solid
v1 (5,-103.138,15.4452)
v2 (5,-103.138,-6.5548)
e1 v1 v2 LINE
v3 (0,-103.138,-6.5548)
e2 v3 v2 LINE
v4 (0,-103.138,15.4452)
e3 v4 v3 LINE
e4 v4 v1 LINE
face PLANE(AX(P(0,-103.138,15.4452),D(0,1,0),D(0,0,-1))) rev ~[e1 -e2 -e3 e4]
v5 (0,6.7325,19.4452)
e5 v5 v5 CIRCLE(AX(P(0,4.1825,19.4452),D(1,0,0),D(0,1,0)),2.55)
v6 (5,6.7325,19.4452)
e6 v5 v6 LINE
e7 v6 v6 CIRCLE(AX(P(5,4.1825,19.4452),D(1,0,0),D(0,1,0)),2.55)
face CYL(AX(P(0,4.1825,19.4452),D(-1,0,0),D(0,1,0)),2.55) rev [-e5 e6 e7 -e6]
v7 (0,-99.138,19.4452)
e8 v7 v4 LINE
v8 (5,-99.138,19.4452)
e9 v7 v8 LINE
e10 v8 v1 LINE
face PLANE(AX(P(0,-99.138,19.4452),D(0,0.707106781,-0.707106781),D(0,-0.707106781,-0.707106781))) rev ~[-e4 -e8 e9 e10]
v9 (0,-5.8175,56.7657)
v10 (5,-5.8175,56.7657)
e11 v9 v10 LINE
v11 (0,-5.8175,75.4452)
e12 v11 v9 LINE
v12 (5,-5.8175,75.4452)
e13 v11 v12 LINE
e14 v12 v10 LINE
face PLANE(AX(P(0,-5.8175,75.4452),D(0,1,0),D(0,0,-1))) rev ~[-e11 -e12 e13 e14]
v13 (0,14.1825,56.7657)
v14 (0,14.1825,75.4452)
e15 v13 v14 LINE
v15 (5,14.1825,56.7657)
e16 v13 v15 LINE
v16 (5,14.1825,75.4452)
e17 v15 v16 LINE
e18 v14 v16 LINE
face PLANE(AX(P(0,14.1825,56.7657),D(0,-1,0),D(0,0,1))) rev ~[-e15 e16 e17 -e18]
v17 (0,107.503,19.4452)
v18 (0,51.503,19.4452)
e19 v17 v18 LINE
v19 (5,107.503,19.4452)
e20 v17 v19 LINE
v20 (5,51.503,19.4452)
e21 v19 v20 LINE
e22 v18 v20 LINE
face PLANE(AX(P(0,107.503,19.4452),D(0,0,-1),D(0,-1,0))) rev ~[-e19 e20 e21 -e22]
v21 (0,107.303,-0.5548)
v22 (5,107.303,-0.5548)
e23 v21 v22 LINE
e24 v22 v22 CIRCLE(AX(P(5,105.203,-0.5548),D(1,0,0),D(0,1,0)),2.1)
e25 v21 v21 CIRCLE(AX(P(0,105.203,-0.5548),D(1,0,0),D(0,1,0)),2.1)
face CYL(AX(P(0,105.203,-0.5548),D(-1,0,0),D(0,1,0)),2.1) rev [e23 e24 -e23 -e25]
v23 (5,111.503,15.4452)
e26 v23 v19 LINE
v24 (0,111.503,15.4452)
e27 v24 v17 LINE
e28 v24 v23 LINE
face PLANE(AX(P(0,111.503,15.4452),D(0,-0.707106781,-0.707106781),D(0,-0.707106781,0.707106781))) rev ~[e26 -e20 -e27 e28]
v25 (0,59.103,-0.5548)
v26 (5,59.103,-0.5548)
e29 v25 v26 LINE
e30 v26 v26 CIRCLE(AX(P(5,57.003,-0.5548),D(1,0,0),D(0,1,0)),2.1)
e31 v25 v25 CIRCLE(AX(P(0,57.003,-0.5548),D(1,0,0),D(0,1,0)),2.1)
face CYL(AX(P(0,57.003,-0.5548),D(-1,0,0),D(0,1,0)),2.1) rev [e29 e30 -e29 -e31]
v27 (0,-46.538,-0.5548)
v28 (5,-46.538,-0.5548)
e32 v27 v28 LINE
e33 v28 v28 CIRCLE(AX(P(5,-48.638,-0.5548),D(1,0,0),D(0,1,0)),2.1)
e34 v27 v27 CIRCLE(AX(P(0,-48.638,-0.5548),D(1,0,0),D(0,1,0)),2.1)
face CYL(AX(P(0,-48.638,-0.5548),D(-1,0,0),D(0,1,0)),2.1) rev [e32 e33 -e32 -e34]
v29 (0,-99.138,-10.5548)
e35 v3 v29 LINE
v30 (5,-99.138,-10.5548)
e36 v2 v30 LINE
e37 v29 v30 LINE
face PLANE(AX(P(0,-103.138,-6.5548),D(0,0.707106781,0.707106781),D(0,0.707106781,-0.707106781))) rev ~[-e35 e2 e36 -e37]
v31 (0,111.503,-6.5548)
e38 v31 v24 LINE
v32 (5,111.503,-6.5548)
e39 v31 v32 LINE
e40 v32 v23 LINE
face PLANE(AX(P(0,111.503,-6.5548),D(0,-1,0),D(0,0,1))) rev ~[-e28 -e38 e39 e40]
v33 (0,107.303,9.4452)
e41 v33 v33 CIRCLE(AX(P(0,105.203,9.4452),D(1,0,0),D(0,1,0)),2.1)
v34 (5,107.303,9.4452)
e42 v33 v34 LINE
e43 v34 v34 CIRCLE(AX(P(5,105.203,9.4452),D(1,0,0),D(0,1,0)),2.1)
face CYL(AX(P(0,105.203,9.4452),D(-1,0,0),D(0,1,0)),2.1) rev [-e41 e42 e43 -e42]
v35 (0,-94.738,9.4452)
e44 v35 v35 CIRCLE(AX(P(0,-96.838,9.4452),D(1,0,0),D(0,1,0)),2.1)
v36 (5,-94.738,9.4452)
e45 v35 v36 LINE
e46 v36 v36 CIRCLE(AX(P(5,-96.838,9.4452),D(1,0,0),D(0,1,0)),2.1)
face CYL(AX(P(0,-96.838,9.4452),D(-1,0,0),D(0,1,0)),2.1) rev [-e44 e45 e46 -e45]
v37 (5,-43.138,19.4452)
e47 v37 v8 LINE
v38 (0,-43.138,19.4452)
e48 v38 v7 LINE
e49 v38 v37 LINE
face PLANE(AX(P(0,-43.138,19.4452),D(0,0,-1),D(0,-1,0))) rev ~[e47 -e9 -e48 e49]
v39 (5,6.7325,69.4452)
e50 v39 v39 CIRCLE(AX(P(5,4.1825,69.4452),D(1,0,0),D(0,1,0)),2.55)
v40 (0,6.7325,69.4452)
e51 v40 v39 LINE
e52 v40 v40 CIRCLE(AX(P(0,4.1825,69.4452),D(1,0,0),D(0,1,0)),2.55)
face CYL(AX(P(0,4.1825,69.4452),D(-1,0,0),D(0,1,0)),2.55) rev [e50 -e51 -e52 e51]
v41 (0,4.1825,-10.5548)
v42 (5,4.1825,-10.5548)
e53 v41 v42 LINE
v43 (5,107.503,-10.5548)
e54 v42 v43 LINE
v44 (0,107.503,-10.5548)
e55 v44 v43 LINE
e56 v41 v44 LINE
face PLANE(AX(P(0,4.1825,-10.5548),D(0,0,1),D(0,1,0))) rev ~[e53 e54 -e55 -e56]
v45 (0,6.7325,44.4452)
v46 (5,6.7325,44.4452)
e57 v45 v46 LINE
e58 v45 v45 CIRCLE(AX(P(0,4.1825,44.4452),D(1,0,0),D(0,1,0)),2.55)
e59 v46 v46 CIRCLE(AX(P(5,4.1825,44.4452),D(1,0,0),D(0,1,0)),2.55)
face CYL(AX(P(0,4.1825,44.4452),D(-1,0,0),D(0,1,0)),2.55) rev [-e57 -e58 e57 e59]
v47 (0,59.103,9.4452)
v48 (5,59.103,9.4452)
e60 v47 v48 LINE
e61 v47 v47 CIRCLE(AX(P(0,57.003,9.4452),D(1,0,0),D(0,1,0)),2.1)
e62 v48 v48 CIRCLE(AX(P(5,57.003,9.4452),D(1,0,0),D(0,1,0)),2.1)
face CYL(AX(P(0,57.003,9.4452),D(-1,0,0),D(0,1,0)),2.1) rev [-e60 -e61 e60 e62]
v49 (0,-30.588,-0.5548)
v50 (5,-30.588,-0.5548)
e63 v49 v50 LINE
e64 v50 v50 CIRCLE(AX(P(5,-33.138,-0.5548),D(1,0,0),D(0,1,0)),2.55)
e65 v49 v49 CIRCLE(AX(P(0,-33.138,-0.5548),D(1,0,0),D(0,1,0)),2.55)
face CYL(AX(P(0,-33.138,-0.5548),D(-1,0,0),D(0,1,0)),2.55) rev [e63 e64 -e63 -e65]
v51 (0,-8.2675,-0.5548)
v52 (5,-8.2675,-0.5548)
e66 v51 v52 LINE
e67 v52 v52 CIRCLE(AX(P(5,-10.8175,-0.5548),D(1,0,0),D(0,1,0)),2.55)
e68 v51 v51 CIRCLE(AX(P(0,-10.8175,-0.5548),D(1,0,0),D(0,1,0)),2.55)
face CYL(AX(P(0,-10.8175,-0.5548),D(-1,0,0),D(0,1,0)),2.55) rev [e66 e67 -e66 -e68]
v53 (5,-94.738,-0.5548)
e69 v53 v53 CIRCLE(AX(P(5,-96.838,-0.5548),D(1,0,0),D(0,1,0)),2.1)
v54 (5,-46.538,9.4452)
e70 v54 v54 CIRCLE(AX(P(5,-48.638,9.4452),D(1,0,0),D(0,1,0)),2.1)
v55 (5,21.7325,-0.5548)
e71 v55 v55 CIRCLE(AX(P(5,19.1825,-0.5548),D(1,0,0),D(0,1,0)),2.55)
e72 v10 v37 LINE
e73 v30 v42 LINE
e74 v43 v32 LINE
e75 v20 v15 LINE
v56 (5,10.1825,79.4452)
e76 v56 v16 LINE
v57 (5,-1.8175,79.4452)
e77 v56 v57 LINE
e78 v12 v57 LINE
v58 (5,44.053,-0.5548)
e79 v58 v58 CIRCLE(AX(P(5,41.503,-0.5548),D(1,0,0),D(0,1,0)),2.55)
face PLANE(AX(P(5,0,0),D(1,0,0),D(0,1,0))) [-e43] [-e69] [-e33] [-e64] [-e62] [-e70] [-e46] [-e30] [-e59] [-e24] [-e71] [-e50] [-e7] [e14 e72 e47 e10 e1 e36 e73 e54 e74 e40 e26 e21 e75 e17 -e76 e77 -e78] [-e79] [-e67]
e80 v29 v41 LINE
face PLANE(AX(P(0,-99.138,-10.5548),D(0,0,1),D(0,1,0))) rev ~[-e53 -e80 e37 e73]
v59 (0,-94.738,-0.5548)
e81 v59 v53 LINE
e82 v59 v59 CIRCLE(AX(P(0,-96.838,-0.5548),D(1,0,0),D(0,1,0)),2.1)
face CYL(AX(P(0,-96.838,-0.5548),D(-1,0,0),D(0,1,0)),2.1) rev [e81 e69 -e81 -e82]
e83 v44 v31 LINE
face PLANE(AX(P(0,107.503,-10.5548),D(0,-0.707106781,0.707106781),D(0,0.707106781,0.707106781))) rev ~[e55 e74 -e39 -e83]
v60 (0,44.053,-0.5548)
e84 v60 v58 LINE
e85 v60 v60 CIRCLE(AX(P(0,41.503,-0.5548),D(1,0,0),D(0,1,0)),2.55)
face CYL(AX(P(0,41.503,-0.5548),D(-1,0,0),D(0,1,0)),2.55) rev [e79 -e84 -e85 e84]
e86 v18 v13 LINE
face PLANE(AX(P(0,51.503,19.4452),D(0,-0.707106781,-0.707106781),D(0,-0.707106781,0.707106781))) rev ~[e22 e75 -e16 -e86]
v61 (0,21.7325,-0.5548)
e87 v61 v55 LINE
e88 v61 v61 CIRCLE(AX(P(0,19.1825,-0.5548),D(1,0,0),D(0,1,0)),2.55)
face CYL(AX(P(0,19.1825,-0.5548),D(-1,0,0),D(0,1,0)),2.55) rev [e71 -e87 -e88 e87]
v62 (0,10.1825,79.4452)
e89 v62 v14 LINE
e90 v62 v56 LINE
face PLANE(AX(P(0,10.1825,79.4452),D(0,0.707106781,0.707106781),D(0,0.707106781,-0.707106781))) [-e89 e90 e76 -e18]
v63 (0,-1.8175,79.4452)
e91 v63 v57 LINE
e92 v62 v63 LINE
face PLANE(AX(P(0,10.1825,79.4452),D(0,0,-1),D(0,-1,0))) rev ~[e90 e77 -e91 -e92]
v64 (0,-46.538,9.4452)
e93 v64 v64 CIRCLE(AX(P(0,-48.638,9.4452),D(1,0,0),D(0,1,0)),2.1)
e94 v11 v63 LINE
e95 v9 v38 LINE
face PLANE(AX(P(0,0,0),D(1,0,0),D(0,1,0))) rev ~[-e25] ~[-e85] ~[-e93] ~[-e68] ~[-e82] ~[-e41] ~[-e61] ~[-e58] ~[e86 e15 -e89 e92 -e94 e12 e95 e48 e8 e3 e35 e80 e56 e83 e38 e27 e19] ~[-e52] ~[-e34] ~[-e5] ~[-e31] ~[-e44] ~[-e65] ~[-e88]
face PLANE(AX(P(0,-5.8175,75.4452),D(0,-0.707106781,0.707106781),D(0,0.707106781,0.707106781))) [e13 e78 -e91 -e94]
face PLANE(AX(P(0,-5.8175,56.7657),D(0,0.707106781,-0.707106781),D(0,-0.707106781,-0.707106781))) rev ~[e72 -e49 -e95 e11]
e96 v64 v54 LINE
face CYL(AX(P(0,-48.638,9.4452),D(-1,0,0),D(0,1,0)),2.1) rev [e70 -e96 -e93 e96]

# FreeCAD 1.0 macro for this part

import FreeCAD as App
import Part
import Sketcher
from FreeCAD import Vector

doc = App.newDocument("Part")
params = doc.addObject("Spreadsheet::Sheet", "Params")
for row, (alias, value) in enumerate([
    ("sketch1_diameter", "4.2 mm"),
    ("sketch1_diameter2", "5.1 mm"),
    ("sketch1_width", "12 mm"),
    ("sketch1_width2", "56 mm"),
    ("sketch1_height", "22 mm"),
    ("pad1_length", "5 mm"),
], start=1):
    params.set(f"A{row}", alias)
    params.set(f"B{row}", "=" + value)
    params.setAlias(f"B{row}", alias)

body = doc.addObject("PartDesign::Body", "Body")

# Sketch on YZ plane
sketch1 = body.newObject("Sketcher::SketchObject", "Sketch")
sketch1.AttachmentSupport = (doc.getObject("YZ_Plane"), [""])
sketch1.MapMode = "FlatFace"
sketch1.addGeometry([
    Part.LineSegment(Vector(14.1825, 75.4452, 0), Vector(10.1825, 79.4452, 0)),  # 0
    Part.LineSegment(Vector(10.1825, 79.4452, 0), Vector(-1.8175, 79.4452, 0)),  # 1
    Part.LineSegment(Vector(-1.8175, 79.4452, 0), Vector(-5.8175, 75.4452, 0)),  # 2
    Part.LineSegment(Vector(-5.8175, 75.4452, 0), Vector(-5.8175, 56.7657, 0)),  # 3
    Part.LineSegment(Vector(-5.8175, 56.7657, 0), Vector(-43.138, 19.4452, 0)),  # 4
    Part.LineSegment(Vector(-43.138, 19.4452, 0), Vector(-99.138, 19.4452, 0)),  # 5
    Part.LineSegment(Vector(-99.138, 19.4452, 0), Vector(-103.138, 15.4452, 0)),  # 6
    Part.LineSegment(Vector(-103.138, 15.4452, 0), Vector(-103.138, -6.5548, 0)),  # 7
    Part.LineSegment(Vector(-103.138, -6.5548, 0), Vector(-99.138, -10.5548, 0)),  # 8
    Part.LineSegment(Vector(-99.138, -10.5548, 0), Vector(107.503, -10.5548, 0)),  # 9
    Part.LineSegment(Vector(107.503, -10.5548, 0), Vector(111.503, -6.5548, 0)),  # 10
    Part.LineSegment(Vector(111.503, -6.5548, 0), Vector(111.503, 15.4452, 0)),  # 11
    Part.LineSegment(Vector(111.503, 15.4452, 0), Vector(107.503, 19.4452, 0)),  # 12
    Part.LineSegment(Vector(107.503, 19.4452, 0), Vector(51.503, 19.4452, 0)),  # 13
    Part.LineSegment(Vector(51.503, 19.4452, 0), Vector(14.1825, 56.7657, 0)),  # 14
    Part.LineSegment(Vector(14.1825, 56.7657, 0), Vector(14.1825, 75.4452, 0)),  # 15
    Part.Circle(Vector(-96.838, -0.5548, 0), Vector(0, 0, 1), 2.1),  # 16
    Part.Circle(Vector(-96.838, 9.4452, 0), Vector(0, 0, 1), 2.1),  # 17
    Part.Circle(Vector(-48.638, -0.5548, 0), Vector(0, 0, 1), 2.1),  # 18
    Part.Circle(Vector(-33.138, -0.5548, 0), Vector(0, 0, 1), 2.55),  # 19
    Part.Circle(Vector(-10.8175, -0.5548, 0), Vector(0, 0, 1), 2.55),  # 20
    Part.Circle(Vector(-48.638, 9.4452, 0), Vector(0, 0, 1), 2.1),  # 21
    Part.Circle(Vector(19.1825, -0.5548, 0), Vector(0, 0, 1), 2.55),  # 22
    Part.Circle(Vector(41.503, -0.5548, 0), Vector(0, 0, 1), 2.55),  # 23
    Part.Circle(Vector(57.003, -0.5548, 0), Vector(0, 0, 1), 2.1),  # 24
    Part.Circle(Vector(57.003, 9.4452, 0), Vector(0, 0, 1), 2.1),  # 25
    Part.Circle(Vector(105.203, -0.5548, 0), Vector(0, 0, 1), 2.1),  # 26
    Part.Circle(Vector(105.203, 9.4452, 0), Vector(0, 0, 1), 2.1),  # 27
    Part.Circle(Vector(4.1825, 19.4452, 0), Vector(0, 0, 1), 2.55),  # 28
    Part.Circle(Vector(4.1825, 44.4452, 0), Vector(0, 0, 1), 2.55),  # 29
    Part.Circle(Vector(4.1825, 69.4452, 0), Vector(0, 0, 1), 2.55),  # 30
], False)
sketch1.addConstraint([
    Sketcher.Constraint("Coincident", 0, 2, 1, 1),
    Sketcher.Constraint("Coincident", 1, 2, 2, 1),
    Sketcher.Constraint("Coincident", 2, 2, 3, 1),
    Sketcher.Constraint("Coincident", 3, 2, 4, 1),
    Sketcher.Constraint("Coincident", 4, 2, 5, 1),
    Sketcher.Constraint("Coincident", 5, 2, 6, 1),
    Sketcher.Constraint("Coincident", 6, 2, 7, 1),
    Sketcher.Constraint("Coincident", 7, 2, 8, 1),
    Sketcher.Constraint("Coincident", 8, 2, 9, 1),
    Sketcher.Constraint("Coincident", 9, 2, 10, 1),
    Sketcher.Constraint("Coincident", 10, 2, 11, 1),
    Sketcher.Constraint("Coincident", 11, 2, 12, 1),
    Sketcher.Constraint("Coincident", 12, 2, 13, 1),
    Sketcher.Constraint("Coincident", 13, 2, 14, 1),
    Sketcher.Constraint("Coincident", 14, 2, 15, 1),
    Sketcher.Constraint("Coincident", 15, 2, 0, 1),
    Sketcher.Constraint("Horizontal", 1),
    Sketcher.Constraint("Vertical", 3),
    Sketcher.Constraint("Horizontal", 5),
    Sketcher.Constraint("Vertical", 7),
    Sketcher.Constraint("Horizontal", 9),
    Sketcher.Constraint("Vertical", 11),
    Sketcher.Constraint("Horizontal", 13),
    Sketcher.Constraint("Vertical", 15),
    Sketcher.Constraint("Equal", 16, 17),
    Sketcher.Constraint("Equal", 17, 18),
    Sketcher.Constraint("Equal", 19, 20),
    Sketcher.Constraint("Equal", 18, 21),
    Sketcher.Constraint("Equal", 20, 22),
    Sketcher.Constraint("Equal", 22, 23),
    Sketcher.Constraint("Equal", 21, 24),
    Sketcher.Constraint("Equal", 24, 25),
    Sketcher.Constraint("Equal", 25, 26),
    Sketcher.Constraint("Equal", 26, 27),
    Sketcher.Constraint("Equal", 23, 28),
    Sketcher.Constraint("Equal", 28, 29),
    Sketcher.Constraint("Equal", 29, 30),
    Sketcher.Constraint("Perpendicular", 0, 2),
    Sketcher.Constraint("Parallel", 2, 4),
    Sketcher.Constraint("Parallel", 4, 6),
    Sketcher.Constraint("Perpendicular", 6, 8),
    Sketcher.Constraint("Perpendicular", 8, 10),
    Sketcher.Constraint("Perpendicular", 10, 12),
    Sketcher.Constraint("Parallel", 12, 14),
    Sketcher.Constraint("Horizontal", 16, 3, 18, 3),
    Sketcher.Constraint("Horizontal", 18, 3, 19, 3),
    Sketcher.Constraint("Horizontal", 19, 3, 20, 3),
    Sketcher.Constraint("Horizontal", 17, 3, 21, 3),
    Sketcher.Constraint("Horizontal", 20, 3, 22, 3),
    Sketcher.Constraint("Horizontal", 22, 3, 23, 3),
    Sketcher.Constraint("Horizontal", 23, 3, 24, 3),
    Sketcher.Constraint("Horizontal", 21, 3, 25, 3),
    Sketcher.Constraint("Horizontal", 24, 3, 26, 3),
    Sketcher.Constraint("Horizontal", 25, 3, 27, 3),
    Sketcher.Constraint("Horizontal", 28, 3, 4, 2),
    Sketcher.Constraint("Horizontal", 7, 2, 10, 2),
    Sketcher.Constraint("Horizontal", 6, 2, 11, 2),
    Sketcher.Constraint("Horizontal", 5, 2, 12, 2),
    Sketcher.Constraint("Horizontal", 3, 2, 14, 2),
    Sketcher.Constraint("Horizontal", 2, 2, 15, 2),
    Sketcher.Constraint("Vertical", 16, 3, 17, 3),
    Sketcher.Constraint("Vertical", 18, 3, 21, 3),
    Sketcher.Constraint("Vertical", 24, 3, 25, 3),
    Sketcher.Constraint("Vertical", 26, 3, 27, 3),
    Sketcher.Constraint("Vertical", 28, 3, 29, 3),
    Sketcher.Constraint("Vertical", 29, 3, 30, 3),
    Sketcher.Constraint("Vertical", 5, 2, 8, 2),
    Sketcher.Constraint("Vertical", 9, 2, 12, 2),
    Sketcher.Constraint("Equal", 5, 13),
    Sketcher.Constraint("Equal", 2, 6),
    Sketcher.Constraint("DistanceY", 20, 3, 28, 3, 20.0),
    Sketcher.Constraint("DistanceY", 28, 3, 29, 3, 25.0),
    Sketcher.Constraint("DistanceY", 29, 3, 30, 3, 25.0),
    Sketcher.Constraint("DistanceY", 8, 2, 17, 3, 20.0),
    Sketcher.Constraint("DistanceX", 3, 2, 14, 2, 20.0),
    Sketcher.Constraint("Diameter", 16, 4.2),
    Sketcher.Constraint("Diameter", 19, 5.1),
    Sketcher.Constraint("DistanceX", 1, 2, 1, 1, 12.0),
    Sketcher.Constraint("DistanceX", 5, 2, 5, 1, 56.0),
    Sketcher.Constraint("DistanceY", 7, 2, 7, 1, 22.0),
    Sketcher.Constraint("DistanceX", 20, 3, 22, 3, 30.0),
    Sketcher.Constraint("DistanceX", 20, 3, 28, 3, 15.0),
    Sketcher.Constraint("DistanceX", 30, 3, 0, 2, 6.0),
    Sketcher.Constraint("DistanceY", 30, 3, 0, 2, 10.0),
    Sketcher.Constraint("DistanceX", 4, 2, 19, 3, 10.0),
    Sketcher.Constraint("DistanceX", 23, 3, 9, 2, 66.0),
    Sketcher.Constraint("DistanceX", 16, 3, 18, 3, 48.2),
    Sketcher.Constraint("DistanceX", 18, 3, 19, 3, 15.5),
    Sketcher.Constraint("DistanceX", 23, 3, 24, 3, 15.5),
    Sketcher.Constraint("DistanceX", 24, 3, 26, 3, 48.2),
    Sketcher.Constraint("DistanceX", 9, 1, 9, 2, 206.641),
    Sketcher.Constraint("DistanceX", 16, 3, -1, 1, 96.838),
    Sketcher.Constraint("DistanceY", 16, 3, -1, 1, 0.5548),
])
sketch1.setExpression("Constraints[75]", "Params.sketch1_diameter")
sketch1.setExpression("Constraints[76]", "Params.sketch1_diameter2")
sketch1.setExpression("Constraints[77]", "Params.sketch1_width")
sketch1.setExpression("Constraints[78]", "Params.sketch1_width2")
sketch1.setExpression("Constraints[79]", "Params.sketch1_height")
pad1 = body.newObject("PartDesign::Pad", "Pad")
pad1.Profile = sketch1
pad1.setExpression("Length", "Params.pad1_length")

doc.recompute()
